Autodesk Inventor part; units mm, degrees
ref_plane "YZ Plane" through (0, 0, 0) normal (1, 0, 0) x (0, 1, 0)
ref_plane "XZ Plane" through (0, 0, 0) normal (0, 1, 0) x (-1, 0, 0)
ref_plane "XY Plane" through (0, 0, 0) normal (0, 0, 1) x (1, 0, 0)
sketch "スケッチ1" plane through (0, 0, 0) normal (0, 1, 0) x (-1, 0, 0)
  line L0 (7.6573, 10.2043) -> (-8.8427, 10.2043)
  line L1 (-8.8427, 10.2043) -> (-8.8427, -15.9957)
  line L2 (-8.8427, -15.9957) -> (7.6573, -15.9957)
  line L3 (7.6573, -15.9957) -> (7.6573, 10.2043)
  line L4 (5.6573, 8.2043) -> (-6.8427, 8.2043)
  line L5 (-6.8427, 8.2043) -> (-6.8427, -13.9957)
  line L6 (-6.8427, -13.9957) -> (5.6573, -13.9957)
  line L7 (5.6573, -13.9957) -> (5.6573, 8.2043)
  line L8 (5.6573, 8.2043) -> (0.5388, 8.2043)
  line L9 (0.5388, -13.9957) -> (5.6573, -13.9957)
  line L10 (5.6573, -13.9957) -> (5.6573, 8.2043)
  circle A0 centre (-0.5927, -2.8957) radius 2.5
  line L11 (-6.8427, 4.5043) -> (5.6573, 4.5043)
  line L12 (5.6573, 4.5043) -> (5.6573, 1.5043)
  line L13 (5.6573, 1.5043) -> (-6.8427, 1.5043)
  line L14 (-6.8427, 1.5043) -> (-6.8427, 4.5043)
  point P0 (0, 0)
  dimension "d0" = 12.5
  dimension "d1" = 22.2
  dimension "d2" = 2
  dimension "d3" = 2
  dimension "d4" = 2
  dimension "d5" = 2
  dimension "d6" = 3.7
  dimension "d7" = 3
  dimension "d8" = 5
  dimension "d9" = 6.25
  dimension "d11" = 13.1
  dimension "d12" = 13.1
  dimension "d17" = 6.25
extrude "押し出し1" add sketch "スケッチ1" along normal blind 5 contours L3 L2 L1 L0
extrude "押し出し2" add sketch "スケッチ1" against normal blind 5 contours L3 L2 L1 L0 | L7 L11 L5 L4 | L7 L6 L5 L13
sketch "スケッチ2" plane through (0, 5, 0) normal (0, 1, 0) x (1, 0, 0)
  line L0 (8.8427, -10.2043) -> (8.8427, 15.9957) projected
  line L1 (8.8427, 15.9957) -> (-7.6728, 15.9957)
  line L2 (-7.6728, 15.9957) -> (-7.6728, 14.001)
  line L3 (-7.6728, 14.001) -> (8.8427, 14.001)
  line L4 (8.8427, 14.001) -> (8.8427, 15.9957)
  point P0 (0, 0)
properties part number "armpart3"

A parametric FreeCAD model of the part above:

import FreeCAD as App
import Part
import Sketcher

V = App.Vector
Q = App.Units.Quantity


def add_polygon(sketch, points):
    """Adds a closed chain of lines whose ends are joined by coincident constraints."""
    first, n = sketch.GeometryCount, len(points)
    for a, b in zip(points, points[1:] + points[:1]):
        sketch.addGeometry(Part.LineSegment(App.Vector(*a, 0), App.Vector(*b, 0)), False)
    for i in range(n):
        sketch.addConstraint(Sketcher.Constraint("Coincident", first + i, 2, first + (i + 1) % n, 1))

doc = App.newDocument("Part")
params = doc.addObject("Spreadsheet::Sheet", "Params")
for row, (alias, value) in enumerate([
    ("sketch1_width", "12.5 mm"),
    ("sketch1_height", "22.2 mm"),
    ("pad1_length", "5 mm"),
    ("sketch2_diameter", "5 mm"),
    ("sketch2_height", "3 mm"),
    ("sketch2_width", "12.5 mm"),
    ("pad2_length", "5 mm"),
], start=1):
    params.set(f"A{row}", alias)
    params.set(f"B{row}", "=" + value)
    params.setAlias(f"B{row}", alias)

body = doc.addObject("PartDesign::Body", "Body")

# Sketch on XZ plane
sketch1 = body.newObject("Sketcher::SketchObject", "Sketch")
sketch1.AttachmentSupport = (doc.getObject("XZ_Plane"), [""])
sketch1.MapMode = "FlatFace"
add_polygon(sketch1, [(-7.6573, -15.9957), (-7.6573, 10.2043), (8.8427, 10.2043), (8.8427, -15.9957)])  # lines 0-3
add_polygon(sketch1, [(6.8427, 8.2043), (-5.6573, 8.2043), (-5.6573, -13.9957), (6.8427, -13.9957)])  # lines 4-7
sketch1.addConstraint([
    Sketcher.Constraint("Vertical", 0),
    Sketcher.Constraint("Horizontal", 1),
    Sketcher.Constraint("Vertical", 2),
    Sketcher.Constraint("Horizontal", 3),
    Sketcher.Constraint("Horizontal", 4),
    Sketcher.Constraint("Vertical", 5),
    Sketcher.Constraint("Horizontal", 6),
    Sketcher.Constraint("Vertical", 7),
    Sketcher.Constraint("DistanceX", 4, 2, 4, 1, Q("12.5 mm")),
    Sketcher.Constraint("DistanceY", 5, 2, 5, 1, Q("22.2 mm")),
    Sketcher.Constraint("DistanceX", 0, 2, 4, 2, Q("2 mm")),
    Sketcher.Constraint("DistanceY", 4, 2, 0, 2, Q("2 mm")),
    Sketcher.Constraint("DistanceY", 3, 2, 5, 2, Q("2 mm")),
    Sketcher.Constraint("DistanceX", 6, 2, 2, 2, Q("2 mm")),
    Sketcher.Constraint("DistanceX", 0, 2, -1, 1, Q("7.6573 mm")),
    Sketcher.Constraint("DistanceY", -1, 1, 0, 2, Q("10.2043 mm")),
])
sketch1.setExpression("Constraints[16]", "Params.sketch1_width")
sketch1.setExpression("Constraints[17]", "Params.sketch1_height")
pad1 = body.newObject("PartDesign::Pad", "Pad")
pad1.Profile = sketch1
pad1.setExpression("Length", "Params.pad1_length")
pad1.Reversed = True

# Sketch on XZ plane
sketch2 = body.newObject("Sketcher::SketchObject", "Sketch001")
sketch2.AttachmentSupport = (doc.getObject("XZ_Plane"), [""])
sketch2.MapMode = "FlatFace"
add_polygon(sketch2, [(-7.6573, -15.9957), (-7.6573, 10.2043), (8.8427, 10.2043), (8.8427, -15.9957)])  # lines 0-3
add_polygon(sketch2, [(6.8427, 1.5043), (6.8427, 4.5043), (-5.6573, 4.5043), (-5.6573, 1.5043)])  # lines 4-7
sketch2.addGeometry(Part.Circle(V(0.5927, -2.8957, 0), V(0, 0, 1), 2.5), False)  # 8
sketch2.addConstraint([
    Sketcher.Constraint("Vertical", 0),
    Sketcher.Constraint("Horizontal", 1),
    Sketcher.Constraint("Vertical", 2),
    Sketcher.Constraint("Horizontal", 3),
    Sketcher.Constraint("Vertical", 4),
    Sketcher.Constraint("Horizontal", 5),
    Sketcher.Constraint("Vertical", 6),
    Sketcher.Constraint("Horizontal", 7),
    Sketcher.Constraint("Diameter", 8, Q("5 mm")),
    Sketcher.Constraint("DistanceY", 4, 1, 4, 2, Q("3 mm")),
    Sketcher.Constraint("DistanceX", 5, 2, 5, 1, Q("12.5 mm")),
    Sketcher.Constraint("DistanceX", 4, 2, 1, 2, Q("2 mm")),
    Sketcher.Constraint("DistanceX", 0, 2, 5, 2, Q("2 mm")),
    Sketcher.Constraint("DistanceY", 8, 3, 0, 2, Q("13.1 mm")),
    Sketcher.Constraint("DistanceY", 2, 2, 8, 3, Q("13.1 mm")),
    Sketcher.Constraint("DistanceX", 8, 3, 4, 2, Q("6.25 mm")),
    Sketcher.Constraint("DistanceY", 4, 2, 1, 2, Q("5.7 mm")),
    Sketcher.Constraint("DistanceX", -1, 1, 8, 3, Q("0.5927 mm")),
    Sketcher.Constraint("DistanceY", 8, 3, -1, 1, Q("2.8957 mm")),
])
sketch2.setExpression("Constraints[16]", "Params.sketch2_diameter")
sketch2.setExpression("Constraints[17]", "Params.sketch2_height")
sketch2.setExpression("Constraints[18]", "Params.sketch2_width")
pad2 = body.newObject("PartDesign::Pad", "Pad001")
pad2.Profile = sketch2
pad2.setExpression("Length", "Params.pad2_length")

doc.recompute()
